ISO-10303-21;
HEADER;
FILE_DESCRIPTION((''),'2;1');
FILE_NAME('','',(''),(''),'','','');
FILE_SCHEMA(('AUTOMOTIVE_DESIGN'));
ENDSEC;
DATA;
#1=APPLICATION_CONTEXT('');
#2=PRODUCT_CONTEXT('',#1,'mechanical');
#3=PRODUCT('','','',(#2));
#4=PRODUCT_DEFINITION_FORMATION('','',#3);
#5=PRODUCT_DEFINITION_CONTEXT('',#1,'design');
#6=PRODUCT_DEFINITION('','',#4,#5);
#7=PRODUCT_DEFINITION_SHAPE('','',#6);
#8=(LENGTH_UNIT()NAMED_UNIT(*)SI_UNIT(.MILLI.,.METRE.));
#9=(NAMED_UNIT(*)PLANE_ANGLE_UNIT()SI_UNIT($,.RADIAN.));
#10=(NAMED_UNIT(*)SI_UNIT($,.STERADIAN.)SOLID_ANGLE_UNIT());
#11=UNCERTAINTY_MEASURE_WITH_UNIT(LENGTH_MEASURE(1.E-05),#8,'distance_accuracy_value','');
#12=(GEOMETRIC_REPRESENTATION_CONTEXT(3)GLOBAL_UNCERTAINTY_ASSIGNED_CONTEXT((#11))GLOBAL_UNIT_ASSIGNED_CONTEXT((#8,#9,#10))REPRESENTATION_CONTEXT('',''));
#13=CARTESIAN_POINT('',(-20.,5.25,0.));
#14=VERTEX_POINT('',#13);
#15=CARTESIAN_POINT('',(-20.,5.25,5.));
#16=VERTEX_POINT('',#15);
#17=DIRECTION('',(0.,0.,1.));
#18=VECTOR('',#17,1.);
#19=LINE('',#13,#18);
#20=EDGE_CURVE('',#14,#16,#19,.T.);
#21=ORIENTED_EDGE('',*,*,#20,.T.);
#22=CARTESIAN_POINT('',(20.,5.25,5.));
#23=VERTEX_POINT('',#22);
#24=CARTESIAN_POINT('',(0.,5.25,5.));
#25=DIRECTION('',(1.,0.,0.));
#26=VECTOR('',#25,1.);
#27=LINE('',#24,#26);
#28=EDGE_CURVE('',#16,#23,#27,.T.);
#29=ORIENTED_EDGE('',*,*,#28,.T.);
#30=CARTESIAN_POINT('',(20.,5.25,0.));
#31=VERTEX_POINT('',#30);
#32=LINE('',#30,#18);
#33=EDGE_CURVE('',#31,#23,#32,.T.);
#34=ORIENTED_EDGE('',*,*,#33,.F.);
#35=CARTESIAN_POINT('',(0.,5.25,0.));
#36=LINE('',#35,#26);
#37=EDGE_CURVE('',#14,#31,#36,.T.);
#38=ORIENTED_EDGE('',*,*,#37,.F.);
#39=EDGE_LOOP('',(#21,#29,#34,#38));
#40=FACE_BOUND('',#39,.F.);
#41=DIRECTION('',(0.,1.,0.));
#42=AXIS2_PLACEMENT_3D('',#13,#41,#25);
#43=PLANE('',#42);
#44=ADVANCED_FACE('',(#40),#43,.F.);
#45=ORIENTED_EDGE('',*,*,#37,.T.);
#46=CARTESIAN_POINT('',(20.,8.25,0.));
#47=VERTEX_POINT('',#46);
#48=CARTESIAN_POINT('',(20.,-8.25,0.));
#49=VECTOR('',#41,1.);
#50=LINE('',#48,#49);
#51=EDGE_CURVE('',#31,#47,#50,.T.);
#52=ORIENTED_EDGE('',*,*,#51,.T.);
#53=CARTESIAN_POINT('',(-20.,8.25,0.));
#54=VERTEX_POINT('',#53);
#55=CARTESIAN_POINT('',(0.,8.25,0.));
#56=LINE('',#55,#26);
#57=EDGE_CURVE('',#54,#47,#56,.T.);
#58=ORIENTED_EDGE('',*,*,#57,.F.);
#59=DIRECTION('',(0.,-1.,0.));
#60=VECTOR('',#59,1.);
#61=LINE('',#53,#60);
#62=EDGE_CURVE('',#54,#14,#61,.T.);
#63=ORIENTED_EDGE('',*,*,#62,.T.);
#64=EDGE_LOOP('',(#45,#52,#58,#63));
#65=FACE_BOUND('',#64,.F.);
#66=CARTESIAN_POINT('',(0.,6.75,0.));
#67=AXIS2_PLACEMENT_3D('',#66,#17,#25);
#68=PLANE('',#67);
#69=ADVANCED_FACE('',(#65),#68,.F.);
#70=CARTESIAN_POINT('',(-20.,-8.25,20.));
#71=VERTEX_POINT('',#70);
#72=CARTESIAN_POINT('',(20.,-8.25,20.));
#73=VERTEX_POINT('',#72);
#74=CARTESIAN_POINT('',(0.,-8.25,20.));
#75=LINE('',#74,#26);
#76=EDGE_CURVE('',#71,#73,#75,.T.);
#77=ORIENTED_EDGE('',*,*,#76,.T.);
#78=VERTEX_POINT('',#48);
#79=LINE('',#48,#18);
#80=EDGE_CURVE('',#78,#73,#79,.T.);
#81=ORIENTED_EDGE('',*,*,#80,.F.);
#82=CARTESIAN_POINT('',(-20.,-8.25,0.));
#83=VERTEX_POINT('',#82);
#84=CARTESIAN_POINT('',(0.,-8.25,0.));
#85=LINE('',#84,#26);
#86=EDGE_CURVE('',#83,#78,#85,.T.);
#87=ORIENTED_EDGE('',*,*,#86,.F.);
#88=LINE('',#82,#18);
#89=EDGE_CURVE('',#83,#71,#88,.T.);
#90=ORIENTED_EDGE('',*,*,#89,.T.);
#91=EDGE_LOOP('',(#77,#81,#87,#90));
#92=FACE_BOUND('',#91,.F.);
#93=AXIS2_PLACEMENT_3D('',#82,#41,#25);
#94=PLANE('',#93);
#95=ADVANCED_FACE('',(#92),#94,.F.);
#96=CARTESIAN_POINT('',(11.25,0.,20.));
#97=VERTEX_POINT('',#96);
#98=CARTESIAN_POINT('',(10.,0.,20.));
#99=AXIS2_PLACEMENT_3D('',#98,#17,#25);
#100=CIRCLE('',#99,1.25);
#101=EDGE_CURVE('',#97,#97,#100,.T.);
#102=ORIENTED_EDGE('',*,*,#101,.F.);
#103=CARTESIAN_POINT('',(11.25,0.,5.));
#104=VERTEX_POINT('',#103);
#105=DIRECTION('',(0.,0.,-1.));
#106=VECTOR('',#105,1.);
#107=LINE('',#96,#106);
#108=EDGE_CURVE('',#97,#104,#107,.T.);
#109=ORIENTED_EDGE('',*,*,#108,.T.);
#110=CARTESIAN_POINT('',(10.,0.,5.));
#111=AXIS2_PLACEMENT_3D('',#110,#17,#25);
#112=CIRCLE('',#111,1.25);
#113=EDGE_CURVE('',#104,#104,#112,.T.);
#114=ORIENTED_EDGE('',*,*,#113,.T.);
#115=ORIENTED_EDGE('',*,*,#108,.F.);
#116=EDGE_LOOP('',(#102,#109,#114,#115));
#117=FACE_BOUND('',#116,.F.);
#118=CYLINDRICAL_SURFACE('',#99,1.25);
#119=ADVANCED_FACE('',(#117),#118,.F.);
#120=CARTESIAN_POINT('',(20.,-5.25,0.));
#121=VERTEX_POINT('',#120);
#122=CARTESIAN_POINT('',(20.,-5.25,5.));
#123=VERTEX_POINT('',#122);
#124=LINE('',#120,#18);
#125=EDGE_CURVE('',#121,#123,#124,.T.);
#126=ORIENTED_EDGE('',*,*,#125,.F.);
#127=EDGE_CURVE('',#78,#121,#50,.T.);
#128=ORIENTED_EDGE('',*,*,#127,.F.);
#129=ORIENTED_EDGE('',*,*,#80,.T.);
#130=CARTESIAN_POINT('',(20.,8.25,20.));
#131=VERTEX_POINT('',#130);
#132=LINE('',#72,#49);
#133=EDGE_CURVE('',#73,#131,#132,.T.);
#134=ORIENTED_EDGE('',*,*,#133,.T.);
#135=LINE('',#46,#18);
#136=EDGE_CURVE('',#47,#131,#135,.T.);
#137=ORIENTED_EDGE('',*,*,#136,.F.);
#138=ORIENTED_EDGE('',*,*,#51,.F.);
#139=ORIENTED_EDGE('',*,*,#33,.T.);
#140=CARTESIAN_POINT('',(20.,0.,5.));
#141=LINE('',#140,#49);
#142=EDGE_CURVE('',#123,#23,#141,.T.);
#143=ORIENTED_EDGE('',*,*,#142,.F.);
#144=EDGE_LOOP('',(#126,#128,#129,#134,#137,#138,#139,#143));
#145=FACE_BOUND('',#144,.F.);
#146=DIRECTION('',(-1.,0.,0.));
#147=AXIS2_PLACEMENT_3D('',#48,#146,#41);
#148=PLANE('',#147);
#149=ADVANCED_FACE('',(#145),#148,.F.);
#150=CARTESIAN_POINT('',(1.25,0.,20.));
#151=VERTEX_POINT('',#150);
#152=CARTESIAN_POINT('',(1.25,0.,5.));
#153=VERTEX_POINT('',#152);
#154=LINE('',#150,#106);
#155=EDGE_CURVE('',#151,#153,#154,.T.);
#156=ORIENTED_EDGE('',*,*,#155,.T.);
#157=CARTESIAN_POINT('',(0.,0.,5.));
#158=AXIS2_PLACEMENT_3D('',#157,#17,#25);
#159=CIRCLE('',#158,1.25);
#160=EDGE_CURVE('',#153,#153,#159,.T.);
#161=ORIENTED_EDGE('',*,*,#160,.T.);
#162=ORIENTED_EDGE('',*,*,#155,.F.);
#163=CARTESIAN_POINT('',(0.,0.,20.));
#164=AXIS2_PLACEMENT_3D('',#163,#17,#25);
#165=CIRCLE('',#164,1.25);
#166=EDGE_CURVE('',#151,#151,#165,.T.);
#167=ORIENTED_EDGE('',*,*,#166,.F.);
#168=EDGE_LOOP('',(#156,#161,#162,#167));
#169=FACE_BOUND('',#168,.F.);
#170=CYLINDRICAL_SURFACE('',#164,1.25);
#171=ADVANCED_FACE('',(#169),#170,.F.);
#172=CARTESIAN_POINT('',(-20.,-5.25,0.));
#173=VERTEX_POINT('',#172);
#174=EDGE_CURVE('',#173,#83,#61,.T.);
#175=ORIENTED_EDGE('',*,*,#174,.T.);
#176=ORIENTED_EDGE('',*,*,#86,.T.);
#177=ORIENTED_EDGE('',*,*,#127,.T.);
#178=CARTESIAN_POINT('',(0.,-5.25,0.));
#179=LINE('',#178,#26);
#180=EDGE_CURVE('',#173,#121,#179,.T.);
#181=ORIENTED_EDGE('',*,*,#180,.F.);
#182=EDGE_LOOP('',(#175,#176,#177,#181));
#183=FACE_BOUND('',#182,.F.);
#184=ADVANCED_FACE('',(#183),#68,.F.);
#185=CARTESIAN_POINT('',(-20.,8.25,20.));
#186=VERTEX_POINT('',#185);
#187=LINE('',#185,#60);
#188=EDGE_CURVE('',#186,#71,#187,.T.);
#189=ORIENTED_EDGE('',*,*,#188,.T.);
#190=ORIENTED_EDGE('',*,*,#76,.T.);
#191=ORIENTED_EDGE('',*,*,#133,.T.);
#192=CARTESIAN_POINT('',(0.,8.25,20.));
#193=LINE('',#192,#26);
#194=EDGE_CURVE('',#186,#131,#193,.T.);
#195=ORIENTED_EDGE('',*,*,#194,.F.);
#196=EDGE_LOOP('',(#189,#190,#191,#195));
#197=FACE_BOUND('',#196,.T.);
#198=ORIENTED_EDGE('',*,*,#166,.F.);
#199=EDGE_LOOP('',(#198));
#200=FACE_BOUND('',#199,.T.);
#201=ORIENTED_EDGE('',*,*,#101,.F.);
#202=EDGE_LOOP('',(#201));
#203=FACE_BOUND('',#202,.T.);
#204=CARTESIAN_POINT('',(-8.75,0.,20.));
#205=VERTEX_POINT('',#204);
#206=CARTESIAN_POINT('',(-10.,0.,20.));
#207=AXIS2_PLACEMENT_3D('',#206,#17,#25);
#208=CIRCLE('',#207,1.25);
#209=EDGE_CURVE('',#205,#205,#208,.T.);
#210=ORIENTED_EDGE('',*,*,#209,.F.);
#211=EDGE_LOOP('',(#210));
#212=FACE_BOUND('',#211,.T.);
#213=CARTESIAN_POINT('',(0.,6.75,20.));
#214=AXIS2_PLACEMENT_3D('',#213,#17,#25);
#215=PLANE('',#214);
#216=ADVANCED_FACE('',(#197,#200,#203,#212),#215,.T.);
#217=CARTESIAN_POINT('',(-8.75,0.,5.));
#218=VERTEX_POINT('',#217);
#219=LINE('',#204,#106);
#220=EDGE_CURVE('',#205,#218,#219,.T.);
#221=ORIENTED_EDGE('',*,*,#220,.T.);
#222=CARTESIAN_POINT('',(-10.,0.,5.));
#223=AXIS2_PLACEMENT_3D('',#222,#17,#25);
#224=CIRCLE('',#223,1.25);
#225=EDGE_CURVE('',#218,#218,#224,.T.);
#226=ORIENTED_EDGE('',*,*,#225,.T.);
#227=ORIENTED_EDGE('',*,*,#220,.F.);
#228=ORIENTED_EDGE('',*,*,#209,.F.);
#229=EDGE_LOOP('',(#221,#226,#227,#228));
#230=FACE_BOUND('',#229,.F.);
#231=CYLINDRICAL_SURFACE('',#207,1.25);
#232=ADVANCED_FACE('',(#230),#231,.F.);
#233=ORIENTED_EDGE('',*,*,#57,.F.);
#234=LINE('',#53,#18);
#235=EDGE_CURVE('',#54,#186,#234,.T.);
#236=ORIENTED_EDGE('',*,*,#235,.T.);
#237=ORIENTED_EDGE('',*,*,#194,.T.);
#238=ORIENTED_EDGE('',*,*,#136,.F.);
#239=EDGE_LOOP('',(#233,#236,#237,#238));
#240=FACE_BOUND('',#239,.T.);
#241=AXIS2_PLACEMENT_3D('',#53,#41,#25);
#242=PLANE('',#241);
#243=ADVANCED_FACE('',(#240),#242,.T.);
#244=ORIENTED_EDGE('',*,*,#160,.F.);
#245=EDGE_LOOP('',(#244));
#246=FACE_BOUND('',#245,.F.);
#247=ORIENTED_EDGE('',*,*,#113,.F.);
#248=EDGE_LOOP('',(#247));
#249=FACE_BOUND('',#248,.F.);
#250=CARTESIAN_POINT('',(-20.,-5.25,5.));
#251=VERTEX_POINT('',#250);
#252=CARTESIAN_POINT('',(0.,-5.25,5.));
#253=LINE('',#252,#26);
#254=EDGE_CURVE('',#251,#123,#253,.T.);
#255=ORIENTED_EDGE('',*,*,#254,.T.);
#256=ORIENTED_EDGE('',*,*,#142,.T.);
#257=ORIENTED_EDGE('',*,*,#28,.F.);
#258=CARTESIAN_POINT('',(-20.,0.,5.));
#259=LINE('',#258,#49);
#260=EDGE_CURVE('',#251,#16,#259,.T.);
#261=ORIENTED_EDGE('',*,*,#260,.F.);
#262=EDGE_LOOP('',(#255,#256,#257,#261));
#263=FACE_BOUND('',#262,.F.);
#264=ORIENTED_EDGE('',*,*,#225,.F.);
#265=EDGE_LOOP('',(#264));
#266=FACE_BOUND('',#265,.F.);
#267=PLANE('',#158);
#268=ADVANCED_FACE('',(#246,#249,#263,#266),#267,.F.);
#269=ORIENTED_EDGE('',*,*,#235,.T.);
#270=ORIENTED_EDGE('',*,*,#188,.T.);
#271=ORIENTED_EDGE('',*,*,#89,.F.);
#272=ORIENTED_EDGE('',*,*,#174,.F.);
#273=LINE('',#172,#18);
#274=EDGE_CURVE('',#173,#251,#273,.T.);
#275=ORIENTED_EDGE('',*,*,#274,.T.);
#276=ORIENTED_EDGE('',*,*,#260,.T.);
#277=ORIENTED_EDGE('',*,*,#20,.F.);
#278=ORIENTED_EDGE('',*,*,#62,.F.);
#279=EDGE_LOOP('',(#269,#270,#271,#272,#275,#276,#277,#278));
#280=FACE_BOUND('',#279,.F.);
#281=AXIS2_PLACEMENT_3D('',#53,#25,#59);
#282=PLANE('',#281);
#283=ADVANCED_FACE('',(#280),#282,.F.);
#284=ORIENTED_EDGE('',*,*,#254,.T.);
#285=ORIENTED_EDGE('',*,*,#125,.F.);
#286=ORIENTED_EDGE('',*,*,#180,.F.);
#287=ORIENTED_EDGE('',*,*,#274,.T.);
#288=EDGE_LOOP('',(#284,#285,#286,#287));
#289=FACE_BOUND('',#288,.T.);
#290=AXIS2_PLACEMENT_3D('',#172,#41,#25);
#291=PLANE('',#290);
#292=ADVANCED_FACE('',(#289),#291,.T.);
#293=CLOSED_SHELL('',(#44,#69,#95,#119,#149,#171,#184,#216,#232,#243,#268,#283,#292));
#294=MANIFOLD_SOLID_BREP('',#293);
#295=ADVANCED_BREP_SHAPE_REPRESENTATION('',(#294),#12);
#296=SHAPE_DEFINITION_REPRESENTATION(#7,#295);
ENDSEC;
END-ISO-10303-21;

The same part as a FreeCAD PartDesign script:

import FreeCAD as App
import Part
import Sketcher

doc = App.newDocument("Part")
body = doc.addObject("PartDesign::Body", "Body")

sketch1 = body.newObject("Sketcher::SketchObject", "Sketch")
sketch1.AttachmentSupport = (doc.getObject("XY_Plane"), [""])
sketch1.MapMode = "FlatFace"
sketch1.addGeometry([
    Part.LineSegment(App.Vector(-20, 8, 0), App.Vector(-20, -8, 0)),
    Part.LineSegment(App.Vector(-20, -8, 0), App.Vector(20, -8, 0)),
    Part.LineSegment(App.Vector(20, -8, 0), App.Vector(20, 8, 0)),
    Part.LineSegment(App.Vector(20, 8, 0), App.Vector(-20, 8, 0)),
], False)
sketch1.addConstraint([
    Sketcher.Constraint("Coincident", 0, 2, 1, 1),
    Sketcher.Constraint("Coincident", 1, 2, 2, 1),
    Sketcher.Constraint("Coincident", 2, 2, 3, 1),
    Sketcher.Constraint("Coincident", 3, 2, 0, 1),
    Sketcher.Constraint("Vertical", 0),
    Sketcher.Constraint("Horizontal", 1),
    Sketcher.Constraint("Vertical", 2),
    Sketcher.Constraint("Horizontal", 3),
    Sketcher.Constraint("Symmetric", 0, 2, 2, 2, -1, 1),
    Sketcher.Constraint("DistanceX", 1, 1, 1, 2, 40.0),
    Sketcher.Constraint("DistanceY", 0, 2, 0, 1, 16.5),
])
pad1 = body.newObject("PartDesign::Pad", "Pad")
pad1.Profile = sketch1
pad1.Length = 20

sketch2 = body.newObject("Sketcher::SketchObject", "Sketch001")
sketch2.AttachmentSupport = (doc.getObject("XY_Plane"), [""])
sketch2.MapMode = "FlatFace"
sketch2.addGeometry([
    Part.LineSegment(App.Vector(-20, 5, 0), App.Vector(-20, -5, 0)),
    Part.LineSegment(App.Vector(-20, -5, 0), App.Vector(20, -5, 0)),
    Part.LineSegment(App.Vector(20, -5, 0), App.Vector(20, 5, 0)),
    Part.LineSegment(App.Vector(20, 5, 0), App.Vector(-20, 5, 0)),
], False)
sketch2.addConstraint([
    Sketcher.Constraint("Coincident", 0, 2, 1, 1),
    Sketcher.Constraint("Coincident", 1, 2, 2, 1),
    Sketcher.Constraint("Coincident", 2, 2, 3, 1),
    Sketcher.Constraint("Coincident", 3, 2, 0, 1),
    Sketcher.Constraint("Vertical", 0),
    Sketcher.Constraint("Horizontal", 1),
    Sketcher.Constraint("Vertical", 2),
    Sketcher.Constraint("Horizontal", 3),
    Sketcher.Constraint("Symmetric", 0, 2, 2, 2, -1, 1),
    Sketcher.Constraint("DistanceX", 1, 1, 1, 2, 40.0),
    Sketcher.Constraint("DistanceY", 0, 2, 0, 1, 10.5),
])
pocket1 = body.newObject("PartDesign::Pocket", "Pocket")
pocket1.Profile = sketch2
pocket1.Length = 5
pocket1.Reversed = True

sketch3 = body.newObject("Sketcher::SketchObject", "Sketch002")
sketch3.AttachmentSupport = (doc.getObject("XY_Plane"), [""])
sketch3.MapMode = "FlatFace"
sketch3.AttachmentOffset = App.Placement(App.Vector(0, 0, 20), App.Rotation())
sketch3.addGeometry(Part.Circle(App.Vector(0, 0, 0), App.Vector(0, 0, 1), 1.2), False)
sketch3.addConstraint([
    Sketcher.Constraint("Coincident", 0, 3, -1, 1),
    Sketcher.Constraint("Diameter", 0, 2.5),
])
pocket2 = body.newObject("PartDesign::Pocket", "Pocket001")
pocket2.Profile = sketch3
pocket2.Type = "ThroughAll"

sketch4 = body.newObject("Sketcher::SketchObject", "Sketch003")
sketch4.AttachmentSupport = (doc.getObject("XY_Plane"), [""])
sketch4.MapMode = "FlatFace"
sketch4.AttachmentOffset = App.Placement(App.Vector(0, 0, 20), App.Rotation())
sketch4.addGeometry([
    Part.Circle(App.Vector(10, 0, 0), App.Vector(0, 0, 1), 1.2),
    Part.Circle(App.Vector(0, 0, 0), App.Vector(0, 0, 1), 1.2),
    Part.Circle(App.Vector(-10, 0, 0), App.Vector(0, 0, 1), 1.2),
], False)
sketch4.addConstraint([
    Sketcher.Constraint("Coincident", 1, 3, -1, 1),
    Sketcher.Constraint("Equal", 0, 1),
    Sketcher.Constraint("Equal", 1, 2),
    Sketcher.Constraint("Symmetric", 0, 3, 2, 3, -1, 1),
    Sketcher.Constraint("PointOnObject", 0, 3, -1),
    Sketcher.Constraint("Diameter", 0, 2.5),
    Sketcher.Constraint("DistanceX", -1, 1, 0, 3, 10.0),
])
pocket3 = body.newObject("PartDesign::Pocket", "Pocket002")
pocket3.Profile = sketch4
pocket3.Type = "ThroughAll"

doc.recompute()
